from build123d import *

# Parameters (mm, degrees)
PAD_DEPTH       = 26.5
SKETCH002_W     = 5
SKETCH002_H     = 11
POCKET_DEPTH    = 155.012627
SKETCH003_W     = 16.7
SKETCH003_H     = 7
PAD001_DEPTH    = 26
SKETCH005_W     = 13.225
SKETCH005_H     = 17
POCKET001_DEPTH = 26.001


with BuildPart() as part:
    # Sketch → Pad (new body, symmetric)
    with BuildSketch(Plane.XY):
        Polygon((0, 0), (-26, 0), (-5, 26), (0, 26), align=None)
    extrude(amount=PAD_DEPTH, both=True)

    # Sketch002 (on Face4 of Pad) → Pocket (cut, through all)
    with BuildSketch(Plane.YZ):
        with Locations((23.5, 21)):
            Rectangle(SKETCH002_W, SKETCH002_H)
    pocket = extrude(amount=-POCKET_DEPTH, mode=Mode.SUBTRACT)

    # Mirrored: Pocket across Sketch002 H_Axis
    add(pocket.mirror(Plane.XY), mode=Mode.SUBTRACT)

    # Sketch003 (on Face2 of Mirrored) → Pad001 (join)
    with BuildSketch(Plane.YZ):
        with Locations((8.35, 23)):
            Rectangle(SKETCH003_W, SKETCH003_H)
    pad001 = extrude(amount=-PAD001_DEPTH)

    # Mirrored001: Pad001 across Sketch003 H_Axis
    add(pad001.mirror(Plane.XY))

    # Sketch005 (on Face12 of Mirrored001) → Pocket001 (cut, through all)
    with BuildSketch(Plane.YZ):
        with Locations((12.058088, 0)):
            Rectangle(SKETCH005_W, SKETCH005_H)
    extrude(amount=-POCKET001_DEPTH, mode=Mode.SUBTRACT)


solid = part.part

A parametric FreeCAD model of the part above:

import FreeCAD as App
import Part
import Sketcher
from FreeCAD import Vector


def add_polygon(sketch, points):
    """Adds a closed chain of lines whose ends are joined by coincident constraints."""
    first, n = sketch.GeometryCount, len(points)
    for a, b in zip(points, points[1:] + points[:1]):
        sketch.addGeometry(Part.LineSegment(App.Vector(*a, 0), App.Vector(*b, 0)), False)
    for i in range(n):
        sketch.addConstraint(Sketcher.Constraint("Coincident", first + i, 2, first + (i + 1) % n, 1))

doc = App.newDocument("Part")
body = doc.addObject("PartDesign::Body", "Body")

# Sketch on XY plane
sketch1 = body.newObject("Sketcher::SketchObject", "Sketch")
sketch1.AttachmentSupport = (doc.getObject("XY_Plane"), [""])
sketch1.MapMode = "FlatFace"
add_polygon(sketch1, [(-26, 0), (0, 0), (0, 26), (-5, 26)])  # lines 0-3
sketch1.addConstraint([
    Sketcher.Constraint("Horizontal", 0),
    Sketcher.Constraint("Vertical", 1),
    Sketcher.Constraint("Horizontal", 2),
    Sketcher.Constraint("Coincident", 0, 2, -1, 1),
    Sketcher.Constraint("Equal", 0, 1),
    Sketcher.Constraint("DistanceX", 0, 1, 0, 2, 26.0),
    Sketcher.Constraint("DistanceX", 2, 2, 2, 1, 5.0),
])
pad1 = body.newObject("PartDesign::Pad", "Pad")
pad1.Profile = sketch1
pad1.Length = 53
pad1.Midplane = True

# Sketch on YZ plane
sketch2 = body.newObject("Sketcher::SketchObject", "Sketch001")
sketch2.AttachmentSupport = (doc.getObject("YZ_Plane"), [""])
sketch2.MapMode = "FlatFace"
add_polygon(sketch2, [(21, 26), (21, 16), (26, 16), (26, 26)])  # lines 0-3
sketch2.addConstraint([
    Sketcher.Constraint("Vertical", 0),
    Sketcher.Constraint("Horizontal", 1),
    Sketcher.Constraint("Vertical", 2),
    Sketcher.Constraint("Horizontal", 3),
    Sketcher.Constraint("DistanceX", 1, 1, 1, 2, 5.0),
    Sketcher.Constraint("DistanceY", 0, 2, 0, 1, 11.0),
    Sketcher.Constraint("DistanceX", -1, 1, 0, 2, 21.0),
    Sketcher.Constraint("DistanceY", -1, 1, 0, 2, 15.5),
])
pocket1 = body.newObject("PartDesign::Pocket", "Pocket")
pocket1.Profile = sketch2
pocket1.Type = "ThroughAll"
doc.recompute()

mirrored = body.newObject("PartDesign::Mirrored", "Mirrored")
mirrored.Originals = [pocket1]
mirrored.MirrorPlane = (doc.getObject("XY_Plane"), [""])
body.Tip = mirrored

# Sketch on YZ plane
sketch3 = body.newObject("Sketcher::SketchObject", "Sketch002")
sketch3.AttachmentSupport = (doc.getObject("YZ_Plane"), [""])
sketch3.MapMode = "FlatFace"
add_polygon(sketch3, [(0, 26), (0, 20), (17, 20), (17, 26)])  # lines 0-3
sketch3.addConstraint([
    Sketcher.Constraint("Vertical", 0),
    Sketcher.Constraint("Horizontal", 1),
    Sketcher.Constraint("Vertical", 2),
    Sketcher.Constraint("Horizontal", 3),
    Sketcher.Constraint("PointOnObject", 0, 2, -2),
    Sketcher.Constraint("DistanceY", 0, 2, 0, 1, 7.0),
    Sketcher.Constraint("DistanceX", 1, 1, 1, 2, 16.7),
    Sketcher.Constraint("DistanceY", -1, 1, 0, 2, 19.5),
])
pad2 = body.newObject("PartDesign::Pad", "Pad001")
pad2.Profile = sketch3
pad2.Length = 26
pad2.Reversed = True
doc.recompute()

mirrored2 = body.newObject("PartDesign::Mirrored", "Mirrored001")
mirrored2.Originals = [pad2]
mirrored2.MirrorPlane = (doc.getObject("XY_Plane"), [""])
body.Tip = mirrored2

# Sketch on YZ plane
sketch4 = body.newObject("Sketcher::SketchObject", "Sketch003")
sketch4.AttachmentSupport = (doc.getObject("YZ_Plane"), [""])
sketch4.MapMode = "FlatFace"
add_polygon(sketch4, [(5, 8), (5, -8), (19, -8), (19, 8)])  # lines 0-3
sketch4.addConstraint([
    Sketcher.Constraint("Vertical", 0),
    Sketcher.Constraint("Horizontal", 1),
    Sketcher.Constraint("Vertical", 2),
    Sketcher.Constraint("Horizontal", 3),
    Sketcher.Constraint("DistanceY", 0, 2, 0, 1, 17.0),
    Sketcher.Constraint("DistanceY", 0, 2, -1, 1, 8.5),
    Sketcher.Constraint("DistanceX", 1, 1, 1, 2, 13.225),
    Sketcher.Constraint("DistanceX", -1, 1, 0, 2, 5.445588),
])
pocket2 = body.newObject("PartDesign::Pocket", "Pocket001")
pocket2.Profile = sketch4
pocket2.Type = "ThroughAll"

doc.recompute()
